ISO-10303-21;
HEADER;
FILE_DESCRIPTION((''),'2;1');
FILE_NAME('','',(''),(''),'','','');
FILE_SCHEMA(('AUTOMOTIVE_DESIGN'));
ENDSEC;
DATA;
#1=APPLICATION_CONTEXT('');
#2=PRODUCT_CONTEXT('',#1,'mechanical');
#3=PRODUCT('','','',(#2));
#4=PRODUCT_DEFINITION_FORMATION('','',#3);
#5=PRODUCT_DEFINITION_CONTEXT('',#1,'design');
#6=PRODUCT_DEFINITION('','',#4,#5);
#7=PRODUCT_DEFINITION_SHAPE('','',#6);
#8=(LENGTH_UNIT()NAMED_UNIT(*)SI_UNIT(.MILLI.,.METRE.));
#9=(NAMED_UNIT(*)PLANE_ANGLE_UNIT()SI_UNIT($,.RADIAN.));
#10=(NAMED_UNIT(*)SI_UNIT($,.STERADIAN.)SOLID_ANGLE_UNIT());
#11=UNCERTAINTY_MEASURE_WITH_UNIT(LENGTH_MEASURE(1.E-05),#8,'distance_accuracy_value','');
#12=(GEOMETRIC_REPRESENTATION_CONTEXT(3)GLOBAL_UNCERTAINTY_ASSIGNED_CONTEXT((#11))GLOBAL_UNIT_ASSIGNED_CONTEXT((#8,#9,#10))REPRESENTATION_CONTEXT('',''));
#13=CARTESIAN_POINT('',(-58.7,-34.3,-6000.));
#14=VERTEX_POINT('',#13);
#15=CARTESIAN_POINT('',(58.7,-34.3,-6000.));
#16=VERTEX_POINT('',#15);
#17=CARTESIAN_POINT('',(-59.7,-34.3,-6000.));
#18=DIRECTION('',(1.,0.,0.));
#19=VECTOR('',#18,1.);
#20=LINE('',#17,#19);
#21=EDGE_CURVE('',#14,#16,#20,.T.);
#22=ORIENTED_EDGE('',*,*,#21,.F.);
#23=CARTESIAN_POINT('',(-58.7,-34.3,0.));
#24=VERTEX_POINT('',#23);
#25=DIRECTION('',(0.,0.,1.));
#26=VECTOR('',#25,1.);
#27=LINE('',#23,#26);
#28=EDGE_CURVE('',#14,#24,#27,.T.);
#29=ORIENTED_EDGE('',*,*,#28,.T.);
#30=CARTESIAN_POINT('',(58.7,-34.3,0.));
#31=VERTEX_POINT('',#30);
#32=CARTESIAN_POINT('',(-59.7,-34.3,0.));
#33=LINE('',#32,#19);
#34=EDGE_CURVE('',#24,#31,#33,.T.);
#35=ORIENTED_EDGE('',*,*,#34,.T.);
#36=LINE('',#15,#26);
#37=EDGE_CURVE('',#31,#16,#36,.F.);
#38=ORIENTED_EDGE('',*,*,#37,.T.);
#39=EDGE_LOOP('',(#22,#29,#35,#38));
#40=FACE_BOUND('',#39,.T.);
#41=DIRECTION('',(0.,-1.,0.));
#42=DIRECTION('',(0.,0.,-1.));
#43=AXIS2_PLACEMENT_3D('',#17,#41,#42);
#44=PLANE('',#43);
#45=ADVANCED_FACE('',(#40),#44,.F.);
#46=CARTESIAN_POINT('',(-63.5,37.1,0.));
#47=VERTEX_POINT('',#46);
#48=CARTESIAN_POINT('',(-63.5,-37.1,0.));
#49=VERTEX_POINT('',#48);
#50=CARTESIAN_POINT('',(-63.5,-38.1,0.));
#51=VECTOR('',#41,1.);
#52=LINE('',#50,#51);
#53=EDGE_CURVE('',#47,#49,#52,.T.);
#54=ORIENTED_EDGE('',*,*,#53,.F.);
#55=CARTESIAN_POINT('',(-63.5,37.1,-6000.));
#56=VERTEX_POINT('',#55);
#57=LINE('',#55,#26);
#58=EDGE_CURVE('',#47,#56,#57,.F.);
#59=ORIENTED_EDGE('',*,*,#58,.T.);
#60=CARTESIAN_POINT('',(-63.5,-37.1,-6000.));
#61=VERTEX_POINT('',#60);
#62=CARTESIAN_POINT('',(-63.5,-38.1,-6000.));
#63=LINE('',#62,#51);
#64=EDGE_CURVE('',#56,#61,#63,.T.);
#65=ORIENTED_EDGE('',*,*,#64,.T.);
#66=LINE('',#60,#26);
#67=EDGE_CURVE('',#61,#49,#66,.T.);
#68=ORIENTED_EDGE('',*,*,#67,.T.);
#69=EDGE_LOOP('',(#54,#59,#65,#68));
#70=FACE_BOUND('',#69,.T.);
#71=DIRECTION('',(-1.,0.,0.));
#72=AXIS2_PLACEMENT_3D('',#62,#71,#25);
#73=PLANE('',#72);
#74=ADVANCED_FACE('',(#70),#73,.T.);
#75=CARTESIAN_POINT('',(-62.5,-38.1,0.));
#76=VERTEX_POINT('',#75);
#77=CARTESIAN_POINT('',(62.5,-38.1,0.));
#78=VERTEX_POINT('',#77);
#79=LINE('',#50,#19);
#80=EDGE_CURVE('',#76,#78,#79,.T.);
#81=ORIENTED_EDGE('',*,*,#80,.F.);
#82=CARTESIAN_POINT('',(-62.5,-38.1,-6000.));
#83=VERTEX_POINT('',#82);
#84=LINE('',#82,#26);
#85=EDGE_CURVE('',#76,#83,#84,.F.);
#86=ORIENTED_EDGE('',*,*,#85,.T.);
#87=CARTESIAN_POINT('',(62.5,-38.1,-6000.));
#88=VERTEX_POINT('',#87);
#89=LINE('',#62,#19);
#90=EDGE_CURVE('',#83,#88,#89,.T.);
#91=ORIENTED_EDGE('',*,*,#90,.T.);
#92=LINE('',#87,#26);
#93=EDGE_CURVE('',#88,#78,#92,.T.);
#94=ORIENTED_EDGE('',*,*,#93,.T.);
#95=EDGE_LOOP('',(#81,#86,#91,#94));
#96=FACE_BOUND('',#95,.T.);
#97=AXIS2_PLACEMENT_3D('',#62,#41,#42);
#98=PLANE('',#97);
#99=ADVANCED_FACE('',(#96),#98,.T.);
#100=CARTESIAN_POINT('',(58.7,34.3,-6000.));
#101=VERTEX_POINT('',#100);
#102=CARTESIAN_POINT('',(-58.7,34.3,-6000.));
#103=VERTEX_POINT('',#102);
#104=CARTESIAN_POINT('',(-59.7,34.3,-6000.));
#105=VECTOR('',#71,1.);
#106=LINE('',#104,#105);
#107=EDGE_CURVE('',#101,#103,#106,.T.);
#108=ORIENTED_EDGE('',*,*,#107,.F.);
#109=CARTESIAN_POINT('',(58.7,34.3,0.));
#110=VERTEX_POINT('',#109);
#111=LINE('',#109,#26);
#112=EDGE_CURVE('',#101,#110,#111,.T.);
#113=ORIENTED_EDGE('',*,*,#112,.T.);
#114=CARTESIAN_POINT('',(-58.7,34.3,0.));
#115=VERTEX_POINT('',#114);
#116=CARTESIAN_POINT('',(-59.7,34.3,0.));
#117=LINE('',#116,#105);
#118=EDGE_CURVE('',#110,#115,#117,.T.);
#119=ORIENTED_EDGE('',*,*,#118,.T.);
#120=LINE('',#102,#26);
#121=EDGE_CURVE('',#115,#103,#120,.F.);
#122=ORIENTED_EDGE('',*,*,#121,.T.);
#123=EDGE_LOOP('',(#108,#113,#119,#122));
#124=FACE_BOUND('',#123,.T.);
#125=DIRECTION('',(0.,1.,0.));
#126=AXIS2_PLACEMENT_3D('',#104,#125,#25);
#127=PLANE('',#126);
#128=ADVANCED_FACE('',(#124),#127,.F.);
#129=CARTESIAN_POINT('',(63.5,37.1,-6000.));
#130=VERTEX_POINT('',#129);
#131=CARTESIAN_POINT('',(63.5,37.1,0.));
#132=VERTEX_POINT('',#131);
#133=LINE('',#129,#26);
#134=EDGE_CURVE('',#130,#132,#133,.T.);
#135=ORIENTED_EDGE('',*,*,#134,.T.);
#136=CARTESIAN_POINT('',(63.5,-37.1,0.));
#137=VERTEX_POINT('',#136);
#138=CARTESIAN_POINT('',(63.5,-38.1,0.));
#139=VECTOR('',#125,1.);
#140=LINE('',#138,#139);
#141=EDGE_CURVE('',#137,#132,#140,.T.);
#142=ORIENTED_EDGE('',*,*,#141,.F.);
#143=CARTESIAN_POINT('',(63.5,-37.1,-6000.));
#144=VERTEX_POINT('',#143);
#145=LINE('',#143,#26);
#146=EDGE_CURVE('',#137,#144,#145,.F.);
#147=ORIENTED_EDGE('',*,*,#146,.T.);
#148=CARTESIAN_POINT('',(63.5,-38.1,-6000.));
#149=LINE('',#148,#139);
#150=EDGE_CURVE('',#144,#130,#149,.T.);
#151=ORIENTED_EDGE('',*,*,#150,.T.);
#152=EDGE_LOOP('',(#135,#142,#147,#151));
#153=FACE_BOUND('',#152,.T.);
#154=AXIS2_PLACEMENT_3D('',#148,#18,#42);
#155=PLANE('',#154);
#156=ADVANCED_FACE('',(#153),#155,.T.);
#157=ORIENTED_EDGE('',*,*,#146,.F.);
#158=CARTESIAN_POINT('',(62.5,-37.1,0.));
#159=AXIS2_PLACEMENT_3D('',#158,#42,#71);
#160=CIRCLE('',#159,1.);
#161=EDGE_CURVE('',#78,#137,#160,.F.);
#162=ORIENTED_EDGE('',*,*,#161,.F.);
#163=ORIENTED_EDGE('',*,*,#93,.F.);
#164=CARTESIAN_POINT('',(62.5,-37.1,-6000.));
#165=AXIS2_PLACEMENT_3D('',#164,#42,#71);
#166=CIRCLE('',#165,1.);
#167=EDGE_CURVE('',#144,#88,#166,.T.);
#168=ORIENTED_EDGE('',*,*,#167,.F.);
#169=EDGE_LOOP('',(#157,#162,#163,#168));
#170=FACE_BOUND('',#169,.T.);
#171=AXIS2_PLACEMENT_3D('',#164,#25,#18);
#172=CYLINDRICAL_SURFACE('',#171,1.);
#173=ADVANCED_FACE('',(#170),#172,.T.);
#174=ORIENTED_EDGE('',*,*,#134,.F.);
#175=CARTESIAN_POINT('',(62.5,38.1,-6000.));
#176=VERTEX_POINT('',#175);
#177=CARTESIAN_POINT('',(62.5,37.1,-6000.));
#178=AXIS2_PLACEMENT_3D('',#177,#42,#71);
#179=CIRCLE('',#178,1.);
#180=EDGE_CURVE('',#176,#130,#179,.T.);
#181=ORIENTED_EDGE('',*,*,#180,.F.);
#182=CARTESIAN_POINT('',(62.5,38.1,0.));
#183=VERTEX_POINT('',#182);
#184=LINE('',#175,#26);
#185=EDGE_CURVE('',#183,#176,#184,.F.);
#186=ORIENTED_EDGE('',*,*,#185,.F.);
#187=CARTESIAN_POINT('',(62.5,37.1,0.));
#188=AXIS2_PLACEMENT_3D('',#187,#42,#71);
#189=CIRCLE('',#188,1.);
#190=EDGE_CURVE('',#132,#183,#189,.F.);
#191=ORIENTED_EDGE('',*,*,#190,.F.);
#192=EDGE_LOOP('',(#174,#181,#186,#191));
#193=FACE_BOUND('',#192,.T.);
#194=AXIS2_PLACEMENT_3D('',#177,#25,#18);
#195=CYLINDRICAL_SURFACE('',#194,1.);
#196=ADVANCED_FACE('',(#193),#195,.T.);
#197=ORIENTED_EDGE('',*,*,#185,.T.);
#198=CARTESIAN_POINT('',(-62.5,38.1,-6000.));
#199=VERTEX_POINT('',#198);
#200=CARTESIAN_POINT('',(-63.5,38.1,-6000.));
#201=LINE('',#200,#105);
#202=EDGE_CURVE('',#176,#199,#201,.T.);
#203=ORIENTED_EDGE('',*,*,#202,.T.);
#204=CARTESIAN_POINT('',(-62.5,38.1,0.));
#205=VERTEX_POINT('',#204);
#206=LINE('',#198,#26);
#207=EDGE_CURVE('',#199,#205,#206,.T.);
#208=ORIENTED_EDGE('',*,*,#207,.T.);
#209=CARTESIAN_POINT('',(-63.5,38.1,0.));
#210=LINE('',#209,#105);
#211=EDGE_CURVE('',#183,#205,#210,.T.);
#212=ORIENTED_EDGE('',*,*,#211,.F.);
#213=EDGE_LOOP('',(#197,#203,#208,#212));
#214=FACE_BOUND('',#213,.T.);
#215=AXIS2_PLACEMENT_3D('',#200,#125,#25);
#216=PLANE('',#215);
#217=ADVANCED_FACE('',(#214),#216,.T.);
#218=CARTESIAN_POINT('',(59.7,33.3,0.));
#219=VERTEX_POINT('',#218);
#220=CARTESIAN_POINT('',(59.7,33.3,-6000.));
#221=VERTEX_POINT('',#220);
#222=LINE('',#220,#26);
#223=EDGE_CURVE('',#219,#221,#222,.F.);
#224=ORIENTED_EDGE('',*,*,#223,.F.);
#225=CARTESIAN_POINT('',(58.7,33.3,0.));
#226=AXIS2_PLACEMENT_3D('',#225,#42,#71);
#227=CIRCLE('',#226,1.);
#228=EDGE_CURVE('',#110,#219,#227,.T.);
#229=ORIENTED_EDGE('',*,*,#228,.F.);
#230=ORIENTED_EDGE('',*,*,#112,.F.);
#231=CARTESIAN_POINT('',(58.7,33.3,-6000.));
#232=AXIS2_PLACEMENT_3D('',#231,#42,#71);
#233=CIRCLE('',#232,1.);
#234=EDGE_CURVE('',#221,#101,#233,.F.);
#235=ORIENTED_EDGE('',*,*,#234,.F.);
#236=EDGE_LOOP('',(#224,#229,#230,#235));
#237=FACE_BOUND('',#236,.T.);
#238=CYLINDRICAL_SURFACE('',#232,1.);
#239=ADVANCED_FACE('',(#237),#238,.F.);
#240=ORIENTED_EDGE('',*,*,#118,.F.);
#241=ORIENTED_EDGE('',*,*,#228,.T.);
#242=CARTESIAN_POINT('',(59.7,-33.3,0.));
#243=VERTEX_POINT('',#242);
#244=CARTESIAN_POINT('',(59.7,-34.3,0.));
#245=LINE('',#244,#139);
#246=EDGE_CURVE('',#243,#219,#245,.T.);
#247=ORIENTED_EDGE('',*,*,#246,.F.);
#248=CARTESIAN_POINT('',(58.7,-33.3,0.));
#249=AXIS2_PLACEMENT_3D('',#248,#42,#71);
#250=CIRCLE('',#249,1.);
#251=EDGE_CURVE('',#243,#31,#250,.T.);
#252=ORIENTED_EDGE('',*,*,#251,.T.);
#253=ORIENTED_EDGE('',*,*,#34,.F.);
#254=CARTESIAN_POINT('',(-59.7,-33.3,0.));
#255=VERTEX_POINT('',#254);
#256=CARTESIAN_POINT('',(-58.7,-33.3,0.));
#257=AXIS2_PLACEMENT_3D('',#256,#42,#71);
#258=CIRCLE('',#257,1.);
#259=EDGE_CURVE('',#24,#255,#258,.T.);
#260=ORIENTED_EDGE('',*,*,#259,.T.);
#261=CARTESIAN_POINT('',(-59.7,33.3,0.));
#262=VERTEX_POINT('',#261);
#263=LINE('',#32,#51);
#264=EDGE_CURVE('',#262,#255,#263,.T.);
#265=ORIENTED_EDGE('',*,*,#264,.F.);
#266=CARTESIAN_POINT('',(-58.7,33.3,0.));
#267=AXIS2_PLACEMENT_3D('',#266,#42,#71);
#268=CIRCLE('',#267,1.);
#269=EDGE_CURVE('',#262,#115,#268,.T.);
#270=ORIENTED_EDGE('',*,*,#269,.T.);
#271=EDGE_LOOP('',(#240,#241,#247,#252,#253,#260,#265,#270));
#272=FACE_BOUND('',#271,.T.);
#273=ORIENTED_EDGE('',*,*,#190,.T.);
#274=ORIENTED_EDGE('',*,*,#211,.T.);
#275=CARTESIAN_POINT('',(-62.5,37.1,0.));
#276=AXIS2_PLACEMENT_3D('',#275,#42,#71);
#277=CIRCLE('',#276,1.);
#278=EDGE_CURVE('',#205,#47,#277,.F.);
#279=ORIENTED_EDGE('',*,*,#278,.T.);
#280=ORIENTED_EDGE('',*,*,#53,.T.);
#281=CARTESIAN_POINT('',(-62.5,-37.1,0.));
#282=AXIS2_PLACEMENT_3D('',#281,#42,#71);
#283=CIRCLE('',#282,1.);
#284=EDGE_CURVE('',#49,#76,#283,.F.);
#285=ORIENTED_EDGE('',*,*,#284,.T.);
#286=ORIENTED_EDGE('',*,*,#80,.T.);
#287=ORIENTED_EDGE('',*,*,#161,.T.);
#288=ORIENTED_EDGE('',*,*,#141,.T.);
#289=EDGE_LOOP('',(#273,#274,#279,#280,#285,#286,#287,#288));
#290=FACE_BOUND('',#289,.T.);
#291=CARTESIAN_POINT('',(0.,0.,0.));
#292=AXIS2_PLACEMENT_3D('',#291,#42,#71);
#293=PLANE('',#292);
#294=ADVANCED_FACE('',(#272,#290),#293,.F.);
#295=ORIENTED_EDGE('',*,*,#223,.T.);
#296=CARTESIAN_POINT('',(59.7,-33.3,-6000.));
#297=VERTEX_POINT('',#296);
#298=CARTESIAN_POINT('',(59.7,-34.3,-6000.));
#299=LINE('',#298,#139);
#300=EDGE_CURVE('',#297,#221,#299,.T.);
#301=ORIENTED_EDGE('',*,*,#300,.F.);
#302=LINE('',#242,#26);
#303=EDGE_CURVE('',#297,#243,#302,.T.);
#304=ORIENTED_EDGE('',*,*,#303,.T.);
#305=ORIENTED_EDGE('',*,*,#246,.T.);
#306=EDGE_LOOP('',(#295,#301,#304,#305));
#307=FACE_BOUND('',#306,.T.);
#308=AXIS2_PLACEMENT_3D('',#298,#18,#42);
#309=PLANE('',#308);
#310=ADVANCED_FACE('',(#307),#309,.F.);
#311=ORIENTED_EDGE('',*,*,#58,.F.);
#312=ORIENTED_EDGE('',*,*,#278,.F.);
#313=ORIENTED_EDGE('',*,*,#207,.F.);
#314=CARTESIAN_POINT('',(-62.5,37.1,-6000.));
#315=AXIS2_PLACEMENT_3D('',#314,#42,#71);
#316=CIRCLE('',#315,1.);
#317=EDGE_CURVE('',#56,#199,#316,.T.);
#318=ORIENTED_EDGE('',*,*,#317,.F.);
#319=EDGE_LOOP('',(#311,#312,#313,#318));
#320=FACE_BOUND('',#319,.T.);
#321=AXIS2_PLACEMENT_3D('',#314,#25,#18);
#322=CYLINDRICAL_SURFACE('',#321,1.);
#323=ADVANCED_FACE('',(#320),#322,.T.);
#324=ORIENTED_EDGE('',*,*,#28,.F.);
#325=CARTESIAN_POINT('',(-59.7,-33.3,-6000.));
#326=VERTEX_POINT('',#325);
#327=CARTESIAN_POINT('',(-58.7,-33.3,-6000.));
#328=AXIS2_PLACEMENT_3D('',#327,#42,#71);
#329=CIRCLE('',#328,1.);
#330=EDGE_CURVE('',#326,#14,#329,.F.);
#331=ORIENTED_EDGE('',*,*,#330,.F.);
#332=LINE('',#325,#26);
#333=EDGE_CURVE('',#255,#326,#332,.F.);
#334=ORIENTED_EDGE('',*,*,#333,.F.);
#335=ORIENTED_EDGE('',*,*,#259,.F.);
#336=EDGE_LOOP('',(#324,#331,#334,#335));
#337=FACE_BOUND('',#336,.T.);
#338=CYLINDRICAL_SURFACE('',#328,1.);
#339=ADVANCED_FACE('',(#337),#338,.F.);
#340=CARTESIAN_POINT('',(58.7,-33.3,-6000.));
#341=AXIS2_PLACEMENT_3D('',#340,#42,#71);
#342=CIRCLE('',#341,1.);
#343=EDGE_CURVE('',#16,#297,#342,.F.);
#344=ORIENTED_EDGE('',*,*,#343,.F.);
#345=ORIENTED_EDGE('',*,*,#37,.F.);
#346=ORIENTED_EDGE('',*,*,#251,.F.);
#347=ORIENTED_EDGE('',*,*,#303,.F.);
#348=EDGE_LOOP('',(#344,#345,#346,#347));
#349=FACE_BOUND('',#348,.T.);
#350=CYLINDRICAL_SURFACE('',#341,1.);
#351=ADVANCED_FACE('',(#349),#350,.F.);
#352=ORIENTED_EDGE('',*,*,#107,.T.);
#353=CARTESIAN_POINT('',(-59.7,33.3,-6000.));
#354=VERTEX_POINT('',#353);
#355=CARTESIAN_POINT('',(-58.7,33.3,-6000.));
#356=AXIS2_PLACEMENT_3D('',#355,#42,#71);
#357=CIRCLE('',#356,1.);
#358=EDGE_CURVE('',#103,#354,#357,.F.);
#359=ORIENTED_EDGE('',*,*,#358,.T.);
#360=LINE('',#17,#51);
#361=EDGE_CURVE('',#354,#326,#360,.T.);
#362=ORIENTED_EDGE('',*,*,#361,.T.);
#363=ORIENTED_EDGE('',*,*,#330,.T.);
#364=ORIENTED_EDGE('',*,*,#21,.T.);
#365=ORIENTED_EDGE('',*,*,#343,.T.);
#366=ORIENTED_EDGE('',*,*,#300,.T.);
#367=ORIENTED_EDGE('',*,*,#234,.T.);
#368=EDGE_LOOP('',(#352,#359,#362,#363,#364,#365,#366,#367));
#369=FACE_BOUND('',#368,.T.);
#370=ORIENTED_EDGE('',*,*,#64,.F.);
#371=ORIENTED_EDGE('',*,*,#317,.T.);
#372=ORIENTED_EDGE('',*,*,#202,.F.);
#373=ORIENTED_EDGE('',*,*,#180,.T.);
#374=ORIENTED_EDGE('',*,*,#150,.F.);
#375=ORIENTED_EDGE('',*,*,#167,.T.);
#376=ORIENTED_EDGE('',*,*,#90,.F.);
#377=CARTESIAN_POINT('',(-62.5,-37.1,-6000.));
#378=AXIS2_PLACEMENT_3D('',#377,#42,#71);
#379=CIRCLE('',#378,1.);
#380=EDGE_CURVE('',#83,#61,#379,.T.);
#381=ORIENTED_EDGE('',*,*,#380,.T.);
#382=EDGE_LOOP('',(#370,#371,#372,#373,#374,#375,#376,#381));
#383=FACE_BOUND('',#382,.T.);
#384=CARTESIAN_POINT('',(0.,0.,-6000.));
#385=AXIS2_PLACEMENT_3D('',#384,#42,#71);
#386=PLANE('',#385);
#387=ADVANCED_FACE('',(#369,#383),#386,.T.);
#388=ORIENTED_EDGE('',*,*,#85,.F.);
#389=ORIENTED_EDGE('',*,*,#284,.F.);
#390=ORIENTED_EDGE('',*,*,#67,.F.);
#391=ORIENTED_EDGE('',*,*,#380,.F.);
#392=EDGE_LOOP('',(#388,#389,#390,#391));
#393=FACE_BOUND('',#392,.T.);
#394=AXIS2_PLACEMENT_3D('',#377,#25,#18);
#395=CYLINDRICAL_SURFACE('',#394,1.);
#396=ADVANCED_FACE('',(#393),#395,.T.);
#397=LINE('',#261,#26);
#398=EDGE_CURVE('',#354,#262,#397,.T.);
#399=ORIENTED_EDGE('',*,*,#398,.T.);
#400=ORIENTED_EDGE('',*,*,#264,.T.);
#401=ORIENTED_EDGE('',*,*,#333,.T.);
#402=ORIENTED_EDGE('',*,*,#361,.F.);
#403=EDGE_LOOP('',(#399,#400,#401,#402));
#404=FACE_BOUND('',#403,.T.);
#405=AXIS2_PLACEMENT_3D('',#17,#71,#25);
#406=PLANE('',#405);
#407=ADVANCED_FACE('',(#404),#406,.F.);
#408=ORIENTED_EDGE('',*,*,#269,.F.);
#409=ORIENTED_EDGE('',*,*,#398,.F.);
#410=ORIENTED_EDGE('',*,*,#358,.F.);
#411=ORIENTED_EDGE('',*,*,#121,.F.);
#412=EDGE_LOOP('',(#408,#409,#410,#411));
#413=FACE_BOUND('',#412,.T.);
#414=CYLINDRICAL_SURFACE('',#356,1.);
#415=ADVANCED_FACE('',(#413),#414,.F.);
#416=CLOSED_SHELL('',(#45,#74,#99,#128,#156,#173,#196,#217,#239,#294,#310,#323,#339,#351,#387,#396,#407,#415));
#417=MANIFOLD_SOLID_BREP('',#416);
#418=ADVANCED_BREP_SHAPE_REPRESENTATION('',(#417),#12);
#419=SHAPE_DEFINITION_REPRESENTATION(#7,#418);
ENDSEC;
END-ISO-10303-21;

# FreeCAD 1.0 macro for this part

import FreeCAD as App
import Part
import Sketcher


def edges_at(feature, points):
    """Names of the edges that pass closest to the given points."""
    edges = feature.Shape.Edges
    near = lambda p: min(range(len(edges)), key=lambda i: edges[i].distToShape(Part.Vertex(*p))[0])
    return sorted({f"Edge{near(p) + 1}" for p in points})


def add_polygon(sketch, points):
    """Adds a closed chain of lines whose ends are joined by coincident constraints."""
    first, n = sketch.GeometryCount, len(points)
    for a, b in zip(points, points[1:] + points[:1]):
        sketch.addGeometry(Part.LineSegment(App.Vector(*a, 0), App.Vector(*b, 0)), False)
    for i in range(n):
        sketch.addConstraint(Sketcher.Constraint("Coincident", first + i, 2, first + (i + 1) % n, 1))

doc = App.newDocument("Part")
params = doc.addObject("Spreadsheet::Sheet", "Params")
for row, (alias, value) in enumerate([
    ("sketch1_width", "127 mm"),
    ("sketch1_width2", "119.4 mm"),
    ("sketch1_height", "76.2 mm"),
    ("sketch1_height2", "68.6 mm"),
    ("pad1_length", "6000 mm"),
    ("fillet_radius", "1 mm"),
], start=1):
    params.set(f"A{row}", alias)
    params.set(f"B{row}", "=" + value)
    params.setAlias(f"B{row}", alias)

body = doc.addObject("PartDesign::Body", "Body")

sketch1 = body.newObject("Sketcher::SketchObject", "Sketch")
sketch1.AttachmentSupport = (doc.getObject("XY_Plane"), [""])
sketch1.MapMode = "FlatFace"
add_polygon(sketch1, [(-64, 38), (-64, -38), (64, -38), (64, 38)])
add_polygon(sketch1, [(60, -34), (-60, -34), (-60, 34), (60, 34)])
sketch1.addConstraint(Sketcher.Constraint("Vertical", 0))
sketch1.addConstraint(Sketcher.Constraint("Horizontal", 1))
sketch1.addConstraint(Sketcher.Constraint("Vertical", 2))
sketch1.addConstraint(Sketcher.Constraint("Horizontal", 3))
sketch1.addConstraint(Sketcher.Constraint("Horizontal", 4))
sketch1.addConstraint(Sketcher.Constraint("Vertical", 5))
sketch1.addConstraint(Sketcher.Constraint("Horizontal", 6))
sketch1.addConstraint(Sketcher.Constraint("Vertical", 7))
sketch1.addConstraint(Sketcher.Constraint("Symmetric", 0, 2, 2, 2, -1, 1))
sketch1.addConstraint(Sketcher.Constraint("Symmetric", 4, 2, 6, 2, -1, 1))
sketch1.addConstraint(Sketcher.Constraint("DistanceX", 1, 1, 1, 2, 127.0))
sketch1.addConstraint(Sketcher.Constraint("DistanceX", 4, 2, 4, 1, 119.4))
sketch1.addConstraint(Sketcher.Constraint("DistanceY", 0, 2, 0, 1, 76.2))
sketch1.addConstraint(Sketcher.Constraint("DistanceY", 5, 1, 5, 2, 68.6))
sketch1.setExpression("Constraints[18]", "Params.sketch1_width")
sketch1.setExpression("Constraints[19]", "Params.sketch1_width2")
sketch1.setExpression("Constraints[20]", "Params.sketch1_height")
sketch1.setExpression("Constraints[21]", "Params.sketch1_height2")
pad1 = body.newObject("PartDesign::Pad", "Pad")
pad1.Profile = sketch1
pad1.setExpression("Length", "Params.pad1_length")
pad1.Reversed = True
doc.recompute()

fillet = body.newObject("PartDesign::Fillet", "Fillet")
fillet.Base = (pad1, edges_at(pad1, [
    (59.7, -34.3, -3000),
    (-59.7, -34.3, -3000),
    (-59.7, 34.3, -3000),
    (59.7, 34.3, -3000),
    (63.5, -38.1, -3000),
    (-63.5, -38.1, -3000),
    (-63.5, 38.1, -3000),
    (63.5, 38.1, -3000),
]))
fillet.setExpression("Radius", "Params.fillet_radius")

doc.recompute()
